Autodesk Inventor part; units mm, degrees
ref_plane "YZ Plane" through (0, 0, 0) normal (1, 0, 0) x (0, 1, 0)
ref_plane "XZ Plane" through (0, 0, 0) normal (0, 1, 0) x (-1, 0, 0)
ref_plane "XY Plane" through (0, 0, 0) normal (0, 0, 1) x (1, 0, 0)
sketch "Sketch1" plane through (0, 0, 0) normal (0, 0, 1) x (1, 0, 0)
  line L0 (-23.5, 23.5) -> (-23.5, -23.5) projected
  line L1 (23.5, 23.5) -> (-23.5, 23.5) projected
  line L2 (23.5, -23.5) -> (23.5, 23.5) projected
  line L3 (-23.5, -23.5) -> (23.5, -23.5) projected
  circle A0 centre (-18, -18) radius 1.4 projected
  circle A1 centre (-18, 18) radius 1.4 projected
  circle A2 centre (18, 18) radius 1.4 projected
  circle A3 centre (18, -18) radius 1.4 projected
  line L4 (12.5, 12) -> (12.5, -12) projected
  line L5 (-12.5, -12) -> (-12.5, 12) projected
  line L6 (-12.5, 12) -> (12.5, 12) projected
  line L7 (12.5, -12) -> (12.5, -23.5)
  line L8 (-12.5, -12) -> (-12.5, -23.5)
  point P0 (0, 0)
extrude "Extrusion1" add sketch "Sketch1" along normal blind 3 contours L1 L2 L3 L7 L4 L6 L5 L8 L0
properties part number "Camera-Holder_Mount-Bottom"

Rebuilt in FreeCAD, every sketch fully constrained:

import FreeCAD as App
import Part
import Sketcher
from FreeCAD import Vector

doc = App.newDocument("Part")
body = doc.addObject("PartDesign::Body", "Body")

sketch1 = body.newObject("Sketcher::SketchObject", "Sketch")
sketch1.AttachmentSupport = (doc.getObject("XY_Plane"), [""])
sketch1.MapMode = "FlatFace"
sketch1.addGeometry([
    Part.LineSegment(Vector(23.5, 23.5, 0), Vector(-23.5, 23.5, 0)),
    Part.LineSegment(Vector(-23.5, 23.5, 0), Vector(-23.5, -23.5, 0)),
    Part.LineSegment(Vector(-23.5, -23.5, 0), Vector(-12.5, -23.5, 0)),
    Part.LineSegment(Vector(-12.5, -23.5, 0), Vector(-12.5, 12, 0)),
    Part.LineSegment(Vector(-12.5, 12, 0), Vector(12.5, 12, 0)),
    Part.LineSegment(Vector(12.5, 12, 0), Vector(12.5, -23.5, 0)),
    Part.LineSegment(Vector(12.5, -23.5, 0), Vector(23.5, -23.5, 0)),
    Part.LineSegment(Vector(23.5, -23.5, 0), Vector(23.5, 23.5, 0)),
    Part.Circle(Vector(-18, -18, 0), Vector(0, 0, 1), 1.4),
    Part.Circle(Vector(18, -18, 0), Vector(0, 0, 1), 1.4),
    Part.Circle(Vector(-18, 18, 0), Vector(0, 0, 1), 1.4),
    Part.Circle(Vector(18, 18, 0), Vector(0, 0, 1), 1.4),
], False)
sketch1.addConstraint([
    Sketcher.Constraint("Coincident", 0, 2, 1, 1),
    Sketcher.Constraint("Coincident", 1, 2, 2, 1),
    Sketcher.Constraint("Coincident", 2, 2, 3, 1),
    Sketcher.Constraint("Coincident", 3, 2, 4, 1),
    Sketcher.Constraint("Coincident", 4, 2, 5, 1),
    Sketcher.Constraint("Coincident", 5, 2, 6, 1),
    Sketcher.Constraint("Coincident", 6, 2, 7, 1),
    Sketcher.Constraint("Coincident", 7, 2, 0, 1),
    Sketcher.Constraint("Horizontal", 0),
    Sketcher.Constraint("Vertical", 1),
    Sketcher.Constraint("Horizontal", 2),
    Sketcher.Constraint("Vertical", 3),
    Sketcher.Constraint("Horizontal", 4),
    Sketcher.Constraint("Vertical", 5),
    Sketcher.Constraint("Horizontal", 6),
    Sketcher.Constraint("Vertical", 7),
    Sketcher.Constraint("Equal", 8, 9),
    Sketcher.Constraint("Equal", 9, 10),
    Sketcher.Constraint("Equal", 10, 11),
    Sketcher.Constraint("Symmetric", 9, 3, 10, 3, -1, 1),
    Sketcher.Constraint("Symmetric", 8, 3, 11, 3, -1, 1),
    Sketcher.Constraint("Symmetric", 0, 2, 6, 2, -1, 1),
    Sketcher.Constraint("Symmetric", 8, 3, 9, 3, -2),
    Sketcher.Constraint("Symmetric", 2, 2, 5, 2, -2),
    Sketcher.Constraint("Equal", 0, 1),
    Sketcher.Constraint("Diameter", 8, 2.8),
    Sketcher.Constraint("DistanceX", 0, 2, 0, 1, 47.0),
    Sketcher.Constraint("DistanceX", 2, 1, 2, 2, 11.0),
    Sketcher.Constraint("DistanceY", 3, 1, 3, 2, 35.5),
    Sketcher.Constraint("DistanceX", 8, 3, -1, 1, 18.0),
    Sketcher.Constraint("DistanceY", 8, 3, -1, 1, 18.0),
])
pad1 = body.newObject("PartDesign::Pad", "Pad")
pad1.Profile = sketch1
pad1.Length = 3

doc.recompute()
